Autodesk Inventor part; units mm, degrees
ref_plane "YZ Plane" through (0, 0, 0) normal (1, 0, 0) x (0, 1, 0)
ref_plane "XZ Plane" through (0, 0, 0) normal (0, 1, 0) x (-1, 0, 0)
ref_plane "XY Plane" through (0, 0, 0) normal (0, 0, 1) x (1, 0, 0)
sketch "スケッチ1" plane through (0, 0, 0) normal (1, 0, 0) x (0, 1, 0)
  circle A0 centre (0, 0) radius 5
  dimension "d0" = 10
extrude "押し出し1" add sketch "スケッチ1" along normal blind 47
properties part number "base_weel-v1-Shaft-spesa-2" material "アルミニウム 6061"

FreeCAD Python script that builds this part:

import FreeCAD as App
import Part
import Sketcher

doc = App.newDocument("Part")
body = doc.addObject("PartDesign::Body", "Body")

# Sketch on YZ plane
sketch1 = doc.addObject("Sketcher::SketchObject", "Sketch")
body.addObject(sketch1)
sketch1.AttachmentSupport = (doc.YZ_Plane, [""])
sketch1.MapMode = "FlatFace"
sketch1.addGeometry(Part.Circle(App.Vector(0, 0, 0), App.Vector(0, 0, 1), 5), False)
sketch1.addConstraint([
    Sketcher.Constraint("Coincident", 0, 3, -1, 1),
    Sketcher.Constraint("Diameter", 0, 10.0),
])
pad1 = doc.addObject("PartDesign::Pad", "Pad")
body.addObject(pad1)
pad1.Profile = sketch1
pad1.Length = 47

doc.recompute()
